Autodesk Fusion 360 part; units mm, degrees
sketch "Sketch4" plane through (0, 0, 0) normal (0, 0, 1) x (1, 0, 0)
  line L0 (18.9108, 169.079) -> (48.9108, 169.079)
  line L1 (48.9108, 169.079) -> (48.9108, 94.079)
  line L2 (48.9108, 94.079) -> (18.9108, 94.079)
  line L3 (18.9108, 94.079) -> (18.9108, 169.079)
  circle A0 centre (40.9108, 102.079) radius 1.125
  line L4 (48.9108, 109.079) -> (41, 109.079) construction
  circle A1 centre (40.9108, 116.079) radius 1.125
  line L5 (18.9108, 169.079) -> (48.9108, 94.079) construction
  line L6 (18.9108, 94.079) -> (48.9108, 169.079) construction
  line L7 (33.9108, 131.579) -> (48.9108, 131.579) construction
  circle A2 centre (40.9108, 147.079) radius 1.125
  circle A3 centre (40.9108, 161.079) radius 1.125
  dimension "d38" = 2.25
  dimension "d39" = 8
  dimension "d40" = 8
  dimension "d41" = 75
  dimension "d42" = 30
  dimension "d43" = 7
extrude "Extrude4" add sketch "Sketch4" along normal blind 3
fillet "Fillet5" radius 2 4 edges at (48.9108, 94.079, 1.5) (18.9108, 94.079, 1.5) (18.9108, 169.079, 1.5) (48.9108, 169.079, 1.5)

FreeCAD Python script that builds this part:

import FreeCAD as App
import Part
import Sketcher


def edges_at(feature, points):
    """Names of the edges that pass closest to the given points."""
    edges = feature.Shape.Edges
    near = lambda p: min(range(len(edges)), key=lambda i: edges[i].distToShape(Part.Vertex(*p))[0])
    return sorted({f"Edge{near(p) + 1}" for p in points})


def add_polygon(sketch, points):
    """Adds a closed chain of lines whose ends are joined by coincident constraints."""
    first, n = sketch.GeometryCount, len(points)
    for a, b in zip(points, points[1:] + points[:1]):
        sketch.addGeometry(Part.LineSegment(App.Vector(*a, 0), App.Vector(*b, 0)), False)
    for i in range(n):
        sketch.addConstraint(Sketcher.Constraint("Coincident", first + i, 2, first + (i + 1) % n, 1))

doc = App.newDocument("Part")
body = doc.addObject("PartDesign::Body", "Body")

# Sketch on XY plane
sketch1 = body.newObject("Sketcher::SketchObject", "Sketch")
sketch1.AttachmentSupport = (doc.getObject("XY_Plane"), [""])
sketch1.MapMode = "FlatFace"
add_polygon(sketch1, [(48.9, 169.1), (18.9, 169.1), (18.9, 94.1), (48.9, 94.1)])  # lines 0-3
sketch1.addGeometry(Part.Circle(App.Vector(40.9, 102.1, 0), App.Vector(0, 0, 1), 1.1), False)  # 4
sketch1.addGeometry(Part.Circle(App.Vector(40.9, 116.1, 0), App.Vector(0, 0, 1), 1.1), False)  # 5
sketch1.addGeometry(Part.Circle(App.Vector(40.9, 147.1, 0), App.Vector(0, 0, 1), 1.1), False)  # 6
sketch1.addGeometry(Part.Circle(App.Vector(40.9, 161.1, 0), App.Vector(0, 0, 1), 1.1), False)  # 7
sketch1.addConstraint([
    Sketcher.Constraint("Horizontal", 0),
    Sketcher.Constraint("Vertical", 1),
    Sketcher.Constraint("Horizontal", 2),
    Sketcher.Constraint("Vertical", 3),
    Sketcher.Constraint("Equal", 4, 5),
    Sketcher.Constraint("Equal", 5, 6),
    Sketcher.Constraint("Equal", 6, 7),
    Sketcher.Constraint("Vertical", 4, 3, 5, 3),
    Sketcher.Constraint("Vertical", 5, 3, 6, 3),
    Sketcher.Constraint("Vertical", 6, 3, 7, 3),
    Sketcher.Constraint("Diameter", 4, 2.25),
    Sketcher.Constraint("DistanceX", 0, 2, 0, 1, 30.0),
    Sketcher.Constraint("DistanceY", 1, 2, 1, 1, 75.0),
    Sketcher.Constraint("DistanceY", 7, 3, 0, 2, 8.0),
    Sketcher.Constraint("DistanceY", 1, 2, 4, 3, 8.0),
    Sketcher.Constraint("DistanceX", 4, 3, 2, 2, 8.0),
    Sketcher.Constraint("DistanceY", 4, 3, 5, 3, 14.0),
    Sketcher.Constraint("DistanceY", 5, 3, 6, 3, 31.0),
    Sketcher.Constraint("DistanceY", -1, 1, 4, 3, 102.079),
    Sketcher.Constraint("DistanceX", -1, 1, 4, 3, 40.9108),
])
pad1 = body.newObject("PartDesign::Pad", "Pad")
pad1.Profile = sketch1
pad1.Length = 3
doc.recompute()

fillet = body.newObject("PartDesign::Fillet", "Fillet")
fillet.Base = (pad1, edges_at(pad1, [
    (48.911, 94.079, 1.5),
    (18.911, 94.079, 1.5),
    (18.911, 169.079, 1.5),
    (48.911, 169.079, 1.5),
]))
fillet.Radius = 2

doc.recompute()
